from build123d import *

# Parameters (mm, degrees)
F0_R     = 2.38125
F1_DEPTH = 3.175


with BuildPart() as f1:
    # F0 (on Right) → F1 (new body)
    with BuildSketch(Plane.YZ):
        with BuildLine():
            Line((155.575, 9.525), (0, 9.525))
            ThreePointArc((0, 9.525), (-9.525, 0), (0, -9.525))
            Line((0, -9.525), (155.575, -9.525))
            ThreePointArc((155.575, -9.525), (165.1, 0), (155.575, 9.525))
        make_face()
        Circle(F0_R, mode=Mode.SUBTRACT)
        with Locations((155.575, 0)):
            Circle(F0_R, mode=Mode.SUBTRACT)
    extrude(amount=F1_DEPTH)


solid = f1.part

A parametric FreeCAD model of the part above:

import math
import FreeCAD as App
import Part
import Sketcher
from FreeCAD import Vector
Q = App.Units.Quantity

doc = App.newDocument("Part")
body = doc.addObject("PartDesign::Body", "Body")

sketch1 = body.newObject("Sketcher::SketchObject", "Sketch")
sketch1.AttachmentSupport = (doc.getObject("YZ_Plane"), [""])
sketch1.MapMode = "FlatFace"
sketch1.addGeometry([
    Part.LineSegment(Vector(155.6, 9.5, 0), Vector(0, 9.5, 0)),
    Part.ArcOfCircle(Part.Circle(Vector(0, 0, 0), Vector(0, 0, 1), 9.5), math.radians(90), math.radians(270)),
    Part.LineSegment(Vector(0, -9.5, 0), Vector(155.6, -9.5, 0)),
    Part.ArcOfCircle(Part.Circle(Vector(155.6, 0, 0), Vector(0, 0, 1), 9.5), math.radians(-90), math.radians(90)),
    Part.Circle(Vector(0, 0, 0), Vector(0, 0, 1), 2.4),
    Part.Circle(Vector(155.6, 0, 0), Vector(0, 0, 1), 2.4),
], False)
sketch1.addConstraint([
    Sketcher.Constraint("Tangent", 0, 2, 1, 1),
    Sketcher.Constraint("Tangent", 1, 2, 2, 1),
    Sketcher.Constraint("Tangent", 2, 2, 3, 1),
    Sketcher.Constraint("Tangent", 3, 2, 0, 1),
    Sketcher.Constraint("Horizontal", 0),
    Sketcher.Constraint("Horizontal", 2),
    Sketcher.Constraint("Coincident", 1, 3, -1, 1),
    Sketcher.Constraint("Coincident", 4, 3, -1, 1),
    Sketcher.Constraint("Coincident", 5, 3, 3, 3),
    Sketcher.Constraint("Equal", 4, 5),
    Sketcher.Constraint("Diameter", 4, Q("0.1875 in")),
    Sketcher.Constraint("Radius", 1, Q("0.375 in")),
    Sketcher.Constraint("DistanceX", 0, 2, 0, 1, Q("6.125 in")),
])
pad1 = body.newObject("PartDesign::Pad", "Pad")
pad1.Profile = sketch1
pad1.Length = Q("0.125 in")

doc.recompute()
